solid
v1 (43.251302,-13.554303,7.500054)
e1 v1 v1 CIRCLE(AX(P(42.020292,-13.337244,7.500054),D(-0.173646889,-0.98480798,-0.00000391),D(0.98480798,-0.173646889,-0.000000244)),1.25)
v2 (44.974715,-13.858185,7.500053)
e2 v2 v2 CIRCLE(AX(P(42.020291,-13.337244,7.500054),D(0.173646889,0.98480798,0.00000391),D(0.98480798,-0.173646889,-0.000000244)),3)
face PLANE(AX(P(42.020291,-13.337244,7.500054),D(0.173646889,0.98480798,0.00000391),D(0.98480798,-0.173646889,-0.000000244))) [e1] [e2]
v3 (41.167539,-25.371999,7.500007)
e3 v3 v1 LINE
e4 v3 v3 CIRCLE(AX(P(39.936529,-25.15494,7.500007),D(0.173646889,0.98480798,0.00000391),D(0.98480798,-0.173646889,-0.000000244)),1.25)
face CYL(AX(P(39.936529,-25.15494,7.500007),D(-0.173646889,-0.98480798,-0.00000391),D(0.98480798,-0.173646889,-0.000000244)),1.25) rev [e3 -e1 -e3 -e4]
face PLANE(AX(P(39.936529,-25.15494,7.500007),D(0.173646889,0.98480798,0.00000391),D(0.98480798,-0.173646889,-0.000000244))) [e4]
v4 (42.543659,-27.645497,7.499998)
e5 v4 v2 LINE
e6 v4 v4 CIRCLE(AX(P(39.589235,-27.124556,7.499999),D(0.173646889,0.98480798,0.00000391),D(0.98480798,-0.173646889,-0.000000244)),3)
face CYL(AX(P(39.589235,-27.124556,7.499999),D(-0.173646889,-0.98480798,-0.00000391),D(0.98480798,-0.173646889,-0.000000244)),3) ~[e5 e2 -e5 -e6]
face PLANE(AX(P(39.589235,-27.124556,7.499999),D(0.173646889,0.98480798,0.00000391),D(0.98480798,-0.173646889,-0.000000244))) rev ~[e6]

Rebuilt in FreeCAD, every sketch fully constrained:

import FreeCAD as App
import Part
import Sketcher
from FreeCAD import Vector
Q = App.Units.Quantity

doc = App.newDocument("Part")
body = doc.addObject("PartDesign::Body", "Body")

sketch1 = body.newObject("Sketcher::SketchObject", "Sketch")
sketch1.AttachmentSupport = (doc.getObject("XY_Plane"), [""])
sketch1.MapMode = "FlatFace"
sketch1.addGeometry(Part.Circle(Vector(0, 0, 0), Vector(0, 0, 1), 1.2), False)
sketch1.addConstraint(Sketcher.Constraint("Coincident", 0, 3, -1, 1))
sketch1.addConstraint(Sketcher.Constraint("Diameter", 0, Q("2.5 mm")))
pad1 = body.newObject("PartDesign::Pad", "Pad")
pad1.Profile = sketch1
pad1.Length = 14
body2 = doc.addObject("PartDesign::Body", "Body001")
doc.recompute()

body.Placement = App.Placement(Vector(0, 0, 0), App.Rotation(Vector(1, 0, 0), 270.000224))
boolean = body2.newObject("PartDesign::Boolean", "Boolean")
boolean.Type = "Fuse"
boolean.addObjects([body])
body3 = doc.addObject("PartDesign::Body", "Body002")
doc.recompute()

body2.Placement = App.Placement(Vector(0, 0, 0), App.Rotation(Vector(0, 1, 0), 0.000014))
boolean2 = body3.newObject("PartDesign::Boolean", "Boolean001")
boolean2.Type = "Fuse"
boolean2.addObjects([body2])
body4 = doc.addObject("PartDesign::Body", "Body003")
doc.recompute()

body3.Placement = App.Placement(Vector(39.936529, -25.15494, 7.500007), App.Rotation(Vector(0, 0, 1), 350.000075))
boolean3 = body4.newObject("PartDesign::Boolean", "Boolean002")
boolean3.Type = "Fuse"
boolean3.addObjects([body3])
body5 = doc.addObject("PartDesign::Body", "Body004")

sketch2 = body5.newObject("Sketcher::SketchObject", "Sketch001")
sketch2.AttachmentSupport = (doc.getObject("XY_Plane004"), [""])
sketch2.MapMode = "FlatFace"
sketch2.addGeometry(Part.Circle(Vector(0, 0, 0), Vector(0, 0, 1), 3), False)
sketch2.addConstraint(Sketcher.Constraint("Coincident", 0, 3, -1, 1))
sketch2.addConstraint(Sketcher.Constraint("Diameter", 0, Q("6 mm")))
pad2 = body5.newObject("PartDesign::Pad", "Pad001")
pad2.Profile = sketch2
pad2.Length = 14
body6 = doc.addObject("PartDesign::Body", "Body005")
doc.recompute()

body5.Placement = App.Placement(Vector(0, 0, 0), App.Rotation(Vector(1, 0, 0), 270.000224))
boolean4 = body6.newObject("PartDesign::Boolean", "Boolean003")
boolean4.Type = "Fuse"
boolean4.addObjects([body5])
body7 = doc.addObject("PartDesign::Body", "Body006")
doc.recompute()

body6.Placement = App.Placement(Vector(0, 0, 0), App.Rotation(Vector(0, 1, 0), 0.000014))
boolean5 = body7.newObject("PartDesign::Boolean", "Boolean004")
boolean5.Type = "Fuse"
boolean5.addObjects([body6])
body8 = doc.addObject("PartDesign::Body", "Body007")
doc.recompute()

body7.Placement = App.Placement(Vector(39.589235, -27.124556, 7.499999), App.Rotation(Vector(0, 0, 1), 350.000075))
boolean6 = body8.newObject("PartDesign::Boolean", "Boolean005")
boolean6.Type = "Fuse"
boolean6.addObjects([body7])
doc.recompute()

boolean7 = body8.newObject("PartDesign::Boolean", "Boolean006")
boolean7.Type = "Cut"
boolean7.addObjects([body4])

doc.recompute()
